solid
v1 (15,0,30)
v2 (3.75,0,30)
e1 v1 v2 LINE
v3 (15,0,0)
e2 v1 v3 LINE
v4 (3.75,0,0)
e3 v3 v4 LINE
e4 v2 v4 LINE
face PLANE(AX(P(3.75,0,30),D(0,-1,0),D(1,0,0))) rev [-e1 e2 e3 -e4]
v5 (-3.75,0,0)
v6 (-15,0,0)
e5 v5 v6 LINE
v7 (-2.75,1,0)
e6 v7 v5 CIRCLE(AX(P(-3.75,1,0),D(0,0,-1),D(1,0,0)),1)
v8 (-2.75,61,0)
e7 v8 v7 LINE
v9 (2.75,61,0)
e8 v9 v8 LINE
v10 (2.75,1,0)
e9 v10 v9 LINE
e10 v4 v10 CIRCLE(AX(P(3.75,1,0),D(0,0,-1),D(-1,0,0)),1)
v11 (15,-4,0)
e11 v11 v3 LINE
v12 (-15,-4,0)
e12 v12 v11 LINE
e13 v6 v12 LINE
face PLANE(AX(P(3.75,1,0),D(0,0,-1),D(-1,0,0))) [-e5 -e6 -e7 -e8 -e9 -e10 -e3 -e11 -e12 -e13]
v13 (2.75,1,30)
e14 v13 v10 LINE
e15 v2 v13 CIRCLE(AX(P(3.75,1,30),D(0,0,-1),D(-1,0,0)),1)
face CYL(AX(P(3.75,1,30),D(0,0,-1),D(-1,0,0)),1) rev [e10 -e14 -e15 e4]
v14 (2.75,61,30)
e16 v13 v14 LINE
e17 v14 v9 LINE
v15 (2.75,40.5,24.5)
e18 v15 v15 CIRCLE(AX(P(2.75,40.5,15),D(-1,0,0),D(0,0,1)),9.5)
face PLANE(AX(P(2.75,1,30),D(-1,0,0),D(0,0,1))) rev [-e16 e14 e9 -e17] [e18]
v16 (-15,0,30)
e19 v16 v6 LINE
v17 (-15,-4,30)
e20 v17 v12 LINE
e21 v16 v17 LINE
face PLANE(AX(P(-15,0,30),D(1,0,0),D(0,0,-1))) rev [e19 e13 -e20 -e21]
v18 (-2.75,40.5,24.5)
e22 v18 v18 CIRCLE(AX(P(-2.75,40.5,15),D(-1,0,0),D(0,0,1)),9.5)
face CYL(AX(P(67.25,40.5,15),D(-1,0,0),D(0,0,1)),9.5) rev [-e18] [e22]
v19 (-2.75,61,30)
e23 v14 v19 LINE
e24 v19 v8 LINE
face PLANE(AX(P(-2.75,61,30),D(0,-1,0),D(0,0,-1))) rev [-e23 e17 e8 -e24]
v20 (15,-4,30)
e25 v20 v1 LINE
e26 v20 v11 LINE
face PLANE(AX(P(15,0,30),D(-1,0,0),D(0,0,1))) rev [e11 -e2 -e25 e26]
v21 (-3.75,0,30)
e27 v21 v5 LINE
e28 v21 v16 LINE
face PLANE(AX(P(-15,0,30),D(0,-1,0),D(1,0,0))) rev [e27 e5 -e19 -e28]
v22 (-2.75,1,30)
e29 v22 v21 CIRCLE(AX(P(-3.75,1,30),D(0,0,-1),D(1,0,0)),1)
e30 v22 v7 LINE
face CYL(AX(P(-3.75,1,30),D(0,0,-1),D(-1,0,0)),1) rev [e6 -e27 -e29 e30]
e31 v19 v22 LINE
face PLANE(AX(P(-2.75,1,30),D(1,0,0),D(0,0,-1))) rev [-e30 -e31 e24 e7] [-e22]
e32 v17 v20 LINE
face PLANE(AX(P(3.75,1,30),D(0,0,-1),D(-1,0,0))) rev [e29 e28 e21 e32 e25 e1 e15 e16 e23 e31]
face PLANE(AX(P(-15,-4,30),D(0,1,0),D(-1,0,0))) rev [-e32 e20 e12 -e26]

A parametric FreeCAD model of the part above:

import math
import FreeCAD as App
import Part
import Sketcher
from FreeCAD import Vector

doc = App.newDocument("Part")
params = doc.addObject("Spreadsheet::Sheet", "Params")
for row, (alias, value) in enumerate([
    ("sketch1_radius", "1 mm"),
    ("sketch1_width", "30 mm"),
    ("sketch1_height", "60 mm"),
    ("sketch1_height2", "4 mm"),
    ("sketch1_width2", "5.5 mm"),
    ("pad1_length", "30 mm"),
    ("sketch2_diameter", "19 mm"),
    ("pocket1_length", "70 mm"),
], start=1):
    params.set(f"A{row}", alias)
    params.set(f"B{row}", "=" + value)
    params.setAlias(f"B{row}", alias)

body = doc.addObject("PartDesign::Body", "Body")

# Sketch on XY plane
sketch1 = body.newObject("Sketcher::SketchObject", "Sketch")
sketch1.AttachmentSupport = (doc.getObject("XY_Plane"), [""])
sketch1.MapMode = "FlatFace"
sketch1.addGeometry(Part.LineSegment(Vector(15, 0, 0), Vector(3.8, 0, 0)), False)
sketch1.addGeometry(Part.ArcOfCircle(Part.Circle(Vector(3.8, 1, 0), Vector(0, 0, 1), 1), math.radians(-180), math.radians(-90)), False)
sketch1.addGeometry(Part.LineSegment(Vector(2.8, 1, 0), Vector(2.8, 61, 0)), False)
sketch1.addGeometry(Part.LineSegment(Vector(2.8, 61, 0), Vector(-2.8, 61, 0)), False)
sketch1.addGeometry(Part.LineSegment(Vector(-2.8, 61, 0), Vector(-2.8, 1, 0)), False)
sketch1.addGeometry(Part.ArcOfCircle(Part.Circle(Vector(-3.8, 1, 0), Vector(0, 0, 1), 1), math.radians(-90), math.radians(0)), False)
sketch1.addGeometry(Part.LineSegment(Vector(-3.8, 0, 0), Vector(-15, 0, 0)), False)
sketch1.addGeometry(Part.LineSegment(Vector(-15, 0, 0), Vector(-15, -4, 0)), False)
sketch1.addGeometry(Part.LineSegment(Vector(-15, -4, 0), Vector(15, -4, 0)), False)
sketch1.addGeometry(Part.LineSegment(Vector(15, -4, 0), Vector(15, 0, 0)), False)
sketch1.addConstraint(Sketcher.Constraint("Tangent", 0, 2, 1, 2))
sketch1.addConstraint(Sketcher.Constraint("Tangent", 1, 1, 2, 1))
sketch1.addConstraint(Sketcher.Constraint("Coincident", 2, 2, 3, 1))
sketch1.addConstraint(Sketcher.Constraint("Coincident", 3, 2, 4, 1))
sketch1.addConstraint(Sketcher.Constraint("Tangent", 4, 2, 5, 2))
sketch1.addConstraint(Sketcher.Constraint("Tangent", 5, 1, 6, 1))
sketch1.addConstraint(Sketcher.Constraint("Coincident", 6, 2, 7, 1))
sketch1.addConstraint(Sketcher.Constraint("Coincident", 7, 2, 8, 1))
sketch1.addConstraint(Sketcher.Constraint("Coincident", 8, 2, 9, 1))
sketch1.addConstraint(Sketcher.Constraint("Coincident", 9, 2, 0, 1))
sketch1.addConstraint(Sketcher.Constraint("Horizontal", 0))
sketch1.addConstraint(Sketcher.Constraint("Vertical", 2))
sketch1.addConstraint(Sketcher.Constraint("Horizontal", 3))
sketch1.addConstraint(Sketcher.Constraint("Vertical", 4))
sketch1.addConstraint(Sketcher.Constraint("Horizontal", 6))
sketch1.addConstraint(Sketcher.Constraint("Vertical", 7))
sketch1.addConstraint(Sketcher.Constraint("Horizontal", 8))
sketch1.addConstraint(Sketcher.Constraint("Vertical", 9))
sketch1.addConstraint(Sketcher.Constraint("Equal", 1, 5))
sketch1.addConstraint(Sketcher.Constraint("Symmetric", 0, 2, 5, 1, -1, 1))
sketch1.addConstraint(Sketcher.Constraint("Symmetric", 6, 2, 9, 2, -2))
sketch1.addConstraint(Sketcher.Constraint("Radius", 1, 1.0))
sketch1.addConstraint(Sketcher.Constraint("DistanceX", 8, 1, 8, 2, 30.0))
sketch1.addConstraint(Sketcher.Constraint("DistanceY", 2, 1, 2, 2, 60.0))
sketch1.addConstraint(Sketcher.Constraint("DistanceY", 7, 2, 7, 1, 4.0))
sketch1.addConstraint(Sketcher.Constraint("DistanceX", 3, 2, 3, 1, 5.5))
sketch1.setExpression("Constraints[21]", "Params.sketch1_radius")
sketch1.setExpression("Constraints[22]", "Params.sketch1_width")
sketch1.setExpression("Constraints[23]", "Params.sketch1_height")
sketch1.setExpression("Constraints[24]", "Params.sketch1_height2")
sketch1.setExpression("Constraints[25]", "Params.sketch1_width2")
pad1 = body.newObject("PartDesign::Pad", "Pad")
pad1.Profile = sketch1
pad1.setExpression("Length", "Params.pad1_length")

# Sketch on YZ plane
sketch2 = body.newObject("Sketcher::SketchObject", "Sketch001")
sketch2.AttachmentSupport = (doc.getObject("YZ_Plane"), [""])
sketch2.MapMode = "FlatFace"
sketch2.AttachmentOffset = App.Placement(Vector(0, 0, -2.75), App.Rotation())
sketch2.addGeometry(Part.Circle(Vector(40, 15, 0), Vector(0, 0, 1), 10), False)
sketch2.addConstraint(Sketcher.Constraint("Diameter", 0, 19.0))
sketch2.addConstraint(Sketcher.Constraint("DistanceY", -1, 1, 0, 3, 15.0))
sketch2.addConstraint(Sketcher.Constraint("DistanceX", -1, 1, 0, 3, 40.5))
sketch2.setExpression("Constraints[0]", "Params.sketch2_diameter")
pocket1 = body.newObject("PartDesign::Pocket", "Pocket")
pocket1.Profile = sketch2
pocket1.setExpression("Length", "Params.pocket1_length")
pocket1.Reversed = True

doc.recompute()
